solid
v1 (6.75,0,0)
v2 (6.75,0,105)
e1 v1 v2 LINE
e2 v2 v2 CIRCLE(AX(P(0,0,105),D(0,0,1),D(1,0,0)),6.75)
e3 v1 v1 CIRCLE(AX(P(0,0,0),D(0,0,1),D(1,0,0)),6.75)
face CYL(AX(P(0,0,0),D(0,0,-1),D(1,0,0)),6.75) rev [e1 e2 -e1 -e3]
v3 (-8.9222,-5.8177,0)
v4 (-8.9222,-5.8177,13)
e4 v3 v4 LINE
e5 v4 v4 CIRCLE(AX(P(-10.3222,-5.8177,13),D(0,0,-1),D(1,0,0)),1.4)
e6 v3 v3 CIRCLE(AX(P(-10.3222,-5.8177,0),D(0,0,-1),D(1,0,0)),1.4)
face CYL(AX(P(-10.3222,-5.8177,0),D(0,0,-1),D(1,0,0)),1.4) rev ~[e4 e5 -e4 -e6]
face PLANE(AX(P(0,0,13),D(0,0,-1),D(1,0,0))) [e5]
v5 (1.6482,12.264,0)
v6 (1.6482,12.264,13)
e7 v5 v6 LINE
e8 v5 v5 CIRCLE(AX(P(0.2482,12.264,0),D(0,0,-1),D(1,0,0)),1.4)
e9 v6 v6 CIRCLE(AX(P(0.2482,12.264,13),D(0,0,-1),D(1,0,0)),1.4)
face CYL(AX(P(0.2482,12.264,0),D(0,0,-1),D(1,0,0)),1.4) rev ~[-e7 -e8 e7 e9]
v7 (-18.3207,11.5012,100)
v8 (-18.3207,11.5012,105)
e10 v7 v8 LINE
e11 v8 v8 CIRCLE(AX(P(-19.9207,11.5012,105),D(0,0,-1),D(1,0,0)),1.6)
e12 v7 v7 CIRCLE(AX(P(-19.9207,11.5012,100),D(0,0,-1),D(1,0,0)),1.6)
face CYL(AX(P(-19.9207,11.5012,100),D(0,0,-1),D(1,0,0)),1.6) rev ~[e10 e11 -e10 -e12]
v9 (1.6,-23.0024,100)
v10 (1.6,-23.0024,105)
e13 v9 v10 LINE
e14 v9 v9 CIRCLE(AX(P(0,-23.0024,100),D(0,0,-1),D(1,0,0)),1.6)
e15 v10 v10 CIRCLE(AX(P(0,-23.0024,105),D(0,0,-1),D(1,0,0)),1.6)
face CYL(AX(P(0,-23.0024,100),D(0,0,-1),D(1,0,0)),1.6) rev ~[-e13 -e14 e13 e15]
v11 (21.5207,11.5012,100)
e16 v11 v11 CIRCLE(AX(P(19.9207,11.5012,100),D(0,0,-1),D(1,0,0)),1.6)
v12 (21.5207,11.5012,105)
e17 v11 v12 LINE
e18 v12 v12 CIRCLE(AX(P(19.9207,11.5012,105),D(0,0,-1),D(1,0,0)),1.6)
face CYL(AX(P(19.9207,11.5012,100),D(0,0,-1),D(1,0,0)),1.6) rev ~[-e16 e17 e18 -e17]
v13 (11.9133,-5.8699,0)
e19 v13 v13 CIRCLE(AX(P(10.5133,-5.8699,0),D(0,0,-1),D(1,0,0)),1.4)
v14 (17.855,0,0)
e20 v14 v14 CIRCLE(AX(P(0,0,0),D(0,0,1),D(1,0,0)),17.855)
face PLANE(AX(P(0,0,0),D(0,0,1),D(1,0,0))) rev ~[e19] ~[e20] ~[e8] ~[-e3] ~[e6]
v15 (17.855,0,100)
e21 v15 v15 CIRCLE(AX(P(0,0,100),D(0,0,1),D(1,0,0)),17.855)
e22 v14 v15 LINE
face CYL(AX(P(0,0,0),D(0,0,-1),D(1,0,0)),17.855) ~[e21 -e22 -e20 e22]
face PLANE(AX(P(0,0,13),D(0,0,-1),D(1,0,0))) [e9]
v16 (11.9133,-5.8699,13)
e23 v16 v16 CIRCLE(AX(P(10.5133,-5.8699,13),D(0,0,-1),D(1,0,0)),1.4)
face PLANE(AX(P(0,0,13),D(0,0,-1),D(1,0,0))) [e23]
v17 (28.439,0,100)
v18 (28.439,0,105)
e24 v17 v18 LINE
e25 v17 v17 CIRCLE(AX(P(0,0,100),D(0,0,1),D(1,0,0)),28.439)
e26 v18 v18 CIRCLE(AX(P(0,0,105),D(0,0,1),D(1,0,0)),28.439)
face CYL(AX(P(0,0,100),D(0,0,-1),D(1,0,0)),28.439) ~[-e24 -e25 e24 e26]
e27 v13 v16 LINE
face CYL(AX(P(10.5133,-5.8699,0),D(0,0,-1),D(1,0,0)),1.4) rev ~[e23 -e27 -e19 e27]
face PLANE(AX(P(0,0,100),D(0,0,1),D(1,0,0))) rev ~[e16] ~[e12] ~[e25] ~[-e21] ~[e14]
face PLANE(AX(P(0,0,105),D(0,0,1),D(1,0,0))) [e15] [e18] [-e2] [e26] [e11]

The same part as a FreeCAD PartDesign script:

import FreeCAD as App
import Part
import Sketcher

V = App.Vector

doc = App.newDocument("Part")
body = doc.addObject("PartDesign::Body", "Body")

sketch1 = doc.addObject("Sketcher::SketchObject", "Sketch")
body.addObject(sketch1)
sketch1.AttachmentSupport = (doc.XY_Plane, [""])
sketch1.MapMode = "FlatFace"
sketch1.addGeometry(Part.Circle(V(0, 0, 0), V(0, 0, 1), 18), False)
sketch1.addGeometry(Part.Circle(V(0, 0, 0), V(0, 0, 1), 7), False)
sketch1.addConstraint(Sketcher.Constraint("Coincident", 0, 3, -1, 1))
sketch1.addConstraint(Sketcher.Constraint("Coincident", 1, 3, -1, 1))
sketch1.addConstraint(Sketcher.Constraint("Diameter", 1, 13.5))
sketch1.addConstraint(Sketcher.Constraint("Diameter", 0, 35.71))
pad1 = doc.addObject("PartDesign::Pad", "Pad")
body.addObject(pad1)
pad1.Profile = sketch1
pad1.Length = 100

sketch2 = doc.addObject("Sketcher::SketchObject", "Sketch001")
body.addObject(sketch2)
sketch2.AttachmentSupport = (doc.XY_Plane, [""])
sketch2.MapMode = "FlatFace"
sketch2.addGeometry(Part.Circle(V(0.2, 12.3, 0), V(0, 0, 1), 1.4), False)
sketch2.addGeometry(Part.Circle(V(10.5, -5.9, 0), V(0, 0, 1), 1.4), False)
sketch2.addGeometry(Part.Circle(V(-10.3, -5.8, 0), V(0, 0, 1), 1.4), False)
sketch2.addConstraint(Sketcher.Constraint("Equal", 0, 1))
sketch2.addConstraint(Sketcher.Constraint("Equal", 1, 2))
sketch2.addConstraint(Sketcher.Constraint("Diameter", 0, 2.8))
sketch2.addConstraint(Sketcher.Constraint("DistanceY", 1, 3, -1, 1, 5.87))
sketch2.addConstraint(Sketcher.Constraint("DistanceY", -1, 1, 0, 3, 12.264))
sketch2.addConstraint(Sketcher.Constraint("DistanceX", 0, 3, 1, 3, 10.265))
sketch2.addConstraint(Sketcher.Constraint("DistanceX", -1, 1, 0, 3, 0.2482))
sketch2.addConstraint(Sketcher.Constraint("DistanceX", 2, 3, -1, 1, 10.3222))
sketch2.addConstraint(Sketcher.Constraint("DistanceY", 2, 3, -1, 1, 5.8177))
pocket1 = doc.addObject("PartDesign::Pocket", "Pocket")
body.addObject(pocket1)
pocket1.Profile = sketch2
pocket1.Length = 13
pocket1.Reversed = True

sketch3 = doc.addObject("Sketcher::SketchObject", "Sketch002")
body.addObject(sketch3)
sketch3.AttachmentSupport = (doc.XY_Plane, [""])
sketch3.MapMode = "FlatFace"
sketch3.AttachmentOffset = App.Placement(V(0, 0, 100), App.Rotation())
sketch3.addGeometry(Part.Circle(V(0, 0, 0), V(0, 0, 1), 28), False)
sketch3.addGeometry(Part.Circle(V(0, 0, 0), V(0, 0, 1), 7), False)
sketch3.addConstraint(Sketcher.Constraint("Coincident", 0, 3, -1, 1))
sketch3.addConstraint(Sketcher.Constraint("Coincident", 1, 3, -1, 1))
sketch3.addConstraint(Sketcher.Constraint("Diameter", 1, 13.5))
sketch3.addConstraint(Sketcher.Constraint("Diameter", 0, 56.878))
pad2 = doc.addObject("PartDesign::Pad", "Pad001")
body.addObject(pad2)
pad2.Profile = sketch3
pad2.Length = 5

sketch4 = doc.addObject("Sketcher::SketchObject", "Sketch003")
body.addObject(sketch4)
sketch4.AttachmentSupport = (doc.XY_Plane, [""])
sketch4.MapMode = "FlatFace"
sketch4.AttachmentOffset = App.Placement(V(0, 0, 100), App.Rotation())
sketch4.addGeometry(Part.Circle(V(0, -23, 0), V(0, 0, 1), 1.6), False)
sketch4.addGeometry(Part.Circle(V(-19.9, 11.5, 0), V(0, 0, 1), 1.6), False)
sketch4.addGeometry(Part.Circle(V(19.9, 11.5, 0), V(0, 0, 1), 1.6), False)
sketch4.addConstraint(Sketcher.Constraint("Equal", 0, 1))
sketch4.addConstraint(Sketcher.Constraint("Equal", 1, 2))
sketch4.addConstraint(Sketcher.Constraint("Symmetric", 1, 3, 2, 3, -2))
sketch4.addConstraint(Sketcher.Constraint("PointOnObject", 0, 3, -2))
sketch4.addConstraint(Sketcher.Constraint("Diameter", 0, 3.2))
sketch4.addConstraint(Sketcher.Constraint("DistanceY", 0, 3, -1, 1, 23.0024))
sketch4.addConstraint(Sketcher.Constraint("DistanceX", 1, 3, -1, 1, 19.9207))
sketch4.addConstraint(Sketcher.Constraint("DistanceY", -1, 1, 1, 3, 11.5012))
pocket2 = doc.addObject("PartDesign::Pocket", "Pocket001")
body.addObject(pocket2)
pocket2.Profile = sketch4
pocket2.Length = 5
pocket2.Reversed = True

doc.recompute()
